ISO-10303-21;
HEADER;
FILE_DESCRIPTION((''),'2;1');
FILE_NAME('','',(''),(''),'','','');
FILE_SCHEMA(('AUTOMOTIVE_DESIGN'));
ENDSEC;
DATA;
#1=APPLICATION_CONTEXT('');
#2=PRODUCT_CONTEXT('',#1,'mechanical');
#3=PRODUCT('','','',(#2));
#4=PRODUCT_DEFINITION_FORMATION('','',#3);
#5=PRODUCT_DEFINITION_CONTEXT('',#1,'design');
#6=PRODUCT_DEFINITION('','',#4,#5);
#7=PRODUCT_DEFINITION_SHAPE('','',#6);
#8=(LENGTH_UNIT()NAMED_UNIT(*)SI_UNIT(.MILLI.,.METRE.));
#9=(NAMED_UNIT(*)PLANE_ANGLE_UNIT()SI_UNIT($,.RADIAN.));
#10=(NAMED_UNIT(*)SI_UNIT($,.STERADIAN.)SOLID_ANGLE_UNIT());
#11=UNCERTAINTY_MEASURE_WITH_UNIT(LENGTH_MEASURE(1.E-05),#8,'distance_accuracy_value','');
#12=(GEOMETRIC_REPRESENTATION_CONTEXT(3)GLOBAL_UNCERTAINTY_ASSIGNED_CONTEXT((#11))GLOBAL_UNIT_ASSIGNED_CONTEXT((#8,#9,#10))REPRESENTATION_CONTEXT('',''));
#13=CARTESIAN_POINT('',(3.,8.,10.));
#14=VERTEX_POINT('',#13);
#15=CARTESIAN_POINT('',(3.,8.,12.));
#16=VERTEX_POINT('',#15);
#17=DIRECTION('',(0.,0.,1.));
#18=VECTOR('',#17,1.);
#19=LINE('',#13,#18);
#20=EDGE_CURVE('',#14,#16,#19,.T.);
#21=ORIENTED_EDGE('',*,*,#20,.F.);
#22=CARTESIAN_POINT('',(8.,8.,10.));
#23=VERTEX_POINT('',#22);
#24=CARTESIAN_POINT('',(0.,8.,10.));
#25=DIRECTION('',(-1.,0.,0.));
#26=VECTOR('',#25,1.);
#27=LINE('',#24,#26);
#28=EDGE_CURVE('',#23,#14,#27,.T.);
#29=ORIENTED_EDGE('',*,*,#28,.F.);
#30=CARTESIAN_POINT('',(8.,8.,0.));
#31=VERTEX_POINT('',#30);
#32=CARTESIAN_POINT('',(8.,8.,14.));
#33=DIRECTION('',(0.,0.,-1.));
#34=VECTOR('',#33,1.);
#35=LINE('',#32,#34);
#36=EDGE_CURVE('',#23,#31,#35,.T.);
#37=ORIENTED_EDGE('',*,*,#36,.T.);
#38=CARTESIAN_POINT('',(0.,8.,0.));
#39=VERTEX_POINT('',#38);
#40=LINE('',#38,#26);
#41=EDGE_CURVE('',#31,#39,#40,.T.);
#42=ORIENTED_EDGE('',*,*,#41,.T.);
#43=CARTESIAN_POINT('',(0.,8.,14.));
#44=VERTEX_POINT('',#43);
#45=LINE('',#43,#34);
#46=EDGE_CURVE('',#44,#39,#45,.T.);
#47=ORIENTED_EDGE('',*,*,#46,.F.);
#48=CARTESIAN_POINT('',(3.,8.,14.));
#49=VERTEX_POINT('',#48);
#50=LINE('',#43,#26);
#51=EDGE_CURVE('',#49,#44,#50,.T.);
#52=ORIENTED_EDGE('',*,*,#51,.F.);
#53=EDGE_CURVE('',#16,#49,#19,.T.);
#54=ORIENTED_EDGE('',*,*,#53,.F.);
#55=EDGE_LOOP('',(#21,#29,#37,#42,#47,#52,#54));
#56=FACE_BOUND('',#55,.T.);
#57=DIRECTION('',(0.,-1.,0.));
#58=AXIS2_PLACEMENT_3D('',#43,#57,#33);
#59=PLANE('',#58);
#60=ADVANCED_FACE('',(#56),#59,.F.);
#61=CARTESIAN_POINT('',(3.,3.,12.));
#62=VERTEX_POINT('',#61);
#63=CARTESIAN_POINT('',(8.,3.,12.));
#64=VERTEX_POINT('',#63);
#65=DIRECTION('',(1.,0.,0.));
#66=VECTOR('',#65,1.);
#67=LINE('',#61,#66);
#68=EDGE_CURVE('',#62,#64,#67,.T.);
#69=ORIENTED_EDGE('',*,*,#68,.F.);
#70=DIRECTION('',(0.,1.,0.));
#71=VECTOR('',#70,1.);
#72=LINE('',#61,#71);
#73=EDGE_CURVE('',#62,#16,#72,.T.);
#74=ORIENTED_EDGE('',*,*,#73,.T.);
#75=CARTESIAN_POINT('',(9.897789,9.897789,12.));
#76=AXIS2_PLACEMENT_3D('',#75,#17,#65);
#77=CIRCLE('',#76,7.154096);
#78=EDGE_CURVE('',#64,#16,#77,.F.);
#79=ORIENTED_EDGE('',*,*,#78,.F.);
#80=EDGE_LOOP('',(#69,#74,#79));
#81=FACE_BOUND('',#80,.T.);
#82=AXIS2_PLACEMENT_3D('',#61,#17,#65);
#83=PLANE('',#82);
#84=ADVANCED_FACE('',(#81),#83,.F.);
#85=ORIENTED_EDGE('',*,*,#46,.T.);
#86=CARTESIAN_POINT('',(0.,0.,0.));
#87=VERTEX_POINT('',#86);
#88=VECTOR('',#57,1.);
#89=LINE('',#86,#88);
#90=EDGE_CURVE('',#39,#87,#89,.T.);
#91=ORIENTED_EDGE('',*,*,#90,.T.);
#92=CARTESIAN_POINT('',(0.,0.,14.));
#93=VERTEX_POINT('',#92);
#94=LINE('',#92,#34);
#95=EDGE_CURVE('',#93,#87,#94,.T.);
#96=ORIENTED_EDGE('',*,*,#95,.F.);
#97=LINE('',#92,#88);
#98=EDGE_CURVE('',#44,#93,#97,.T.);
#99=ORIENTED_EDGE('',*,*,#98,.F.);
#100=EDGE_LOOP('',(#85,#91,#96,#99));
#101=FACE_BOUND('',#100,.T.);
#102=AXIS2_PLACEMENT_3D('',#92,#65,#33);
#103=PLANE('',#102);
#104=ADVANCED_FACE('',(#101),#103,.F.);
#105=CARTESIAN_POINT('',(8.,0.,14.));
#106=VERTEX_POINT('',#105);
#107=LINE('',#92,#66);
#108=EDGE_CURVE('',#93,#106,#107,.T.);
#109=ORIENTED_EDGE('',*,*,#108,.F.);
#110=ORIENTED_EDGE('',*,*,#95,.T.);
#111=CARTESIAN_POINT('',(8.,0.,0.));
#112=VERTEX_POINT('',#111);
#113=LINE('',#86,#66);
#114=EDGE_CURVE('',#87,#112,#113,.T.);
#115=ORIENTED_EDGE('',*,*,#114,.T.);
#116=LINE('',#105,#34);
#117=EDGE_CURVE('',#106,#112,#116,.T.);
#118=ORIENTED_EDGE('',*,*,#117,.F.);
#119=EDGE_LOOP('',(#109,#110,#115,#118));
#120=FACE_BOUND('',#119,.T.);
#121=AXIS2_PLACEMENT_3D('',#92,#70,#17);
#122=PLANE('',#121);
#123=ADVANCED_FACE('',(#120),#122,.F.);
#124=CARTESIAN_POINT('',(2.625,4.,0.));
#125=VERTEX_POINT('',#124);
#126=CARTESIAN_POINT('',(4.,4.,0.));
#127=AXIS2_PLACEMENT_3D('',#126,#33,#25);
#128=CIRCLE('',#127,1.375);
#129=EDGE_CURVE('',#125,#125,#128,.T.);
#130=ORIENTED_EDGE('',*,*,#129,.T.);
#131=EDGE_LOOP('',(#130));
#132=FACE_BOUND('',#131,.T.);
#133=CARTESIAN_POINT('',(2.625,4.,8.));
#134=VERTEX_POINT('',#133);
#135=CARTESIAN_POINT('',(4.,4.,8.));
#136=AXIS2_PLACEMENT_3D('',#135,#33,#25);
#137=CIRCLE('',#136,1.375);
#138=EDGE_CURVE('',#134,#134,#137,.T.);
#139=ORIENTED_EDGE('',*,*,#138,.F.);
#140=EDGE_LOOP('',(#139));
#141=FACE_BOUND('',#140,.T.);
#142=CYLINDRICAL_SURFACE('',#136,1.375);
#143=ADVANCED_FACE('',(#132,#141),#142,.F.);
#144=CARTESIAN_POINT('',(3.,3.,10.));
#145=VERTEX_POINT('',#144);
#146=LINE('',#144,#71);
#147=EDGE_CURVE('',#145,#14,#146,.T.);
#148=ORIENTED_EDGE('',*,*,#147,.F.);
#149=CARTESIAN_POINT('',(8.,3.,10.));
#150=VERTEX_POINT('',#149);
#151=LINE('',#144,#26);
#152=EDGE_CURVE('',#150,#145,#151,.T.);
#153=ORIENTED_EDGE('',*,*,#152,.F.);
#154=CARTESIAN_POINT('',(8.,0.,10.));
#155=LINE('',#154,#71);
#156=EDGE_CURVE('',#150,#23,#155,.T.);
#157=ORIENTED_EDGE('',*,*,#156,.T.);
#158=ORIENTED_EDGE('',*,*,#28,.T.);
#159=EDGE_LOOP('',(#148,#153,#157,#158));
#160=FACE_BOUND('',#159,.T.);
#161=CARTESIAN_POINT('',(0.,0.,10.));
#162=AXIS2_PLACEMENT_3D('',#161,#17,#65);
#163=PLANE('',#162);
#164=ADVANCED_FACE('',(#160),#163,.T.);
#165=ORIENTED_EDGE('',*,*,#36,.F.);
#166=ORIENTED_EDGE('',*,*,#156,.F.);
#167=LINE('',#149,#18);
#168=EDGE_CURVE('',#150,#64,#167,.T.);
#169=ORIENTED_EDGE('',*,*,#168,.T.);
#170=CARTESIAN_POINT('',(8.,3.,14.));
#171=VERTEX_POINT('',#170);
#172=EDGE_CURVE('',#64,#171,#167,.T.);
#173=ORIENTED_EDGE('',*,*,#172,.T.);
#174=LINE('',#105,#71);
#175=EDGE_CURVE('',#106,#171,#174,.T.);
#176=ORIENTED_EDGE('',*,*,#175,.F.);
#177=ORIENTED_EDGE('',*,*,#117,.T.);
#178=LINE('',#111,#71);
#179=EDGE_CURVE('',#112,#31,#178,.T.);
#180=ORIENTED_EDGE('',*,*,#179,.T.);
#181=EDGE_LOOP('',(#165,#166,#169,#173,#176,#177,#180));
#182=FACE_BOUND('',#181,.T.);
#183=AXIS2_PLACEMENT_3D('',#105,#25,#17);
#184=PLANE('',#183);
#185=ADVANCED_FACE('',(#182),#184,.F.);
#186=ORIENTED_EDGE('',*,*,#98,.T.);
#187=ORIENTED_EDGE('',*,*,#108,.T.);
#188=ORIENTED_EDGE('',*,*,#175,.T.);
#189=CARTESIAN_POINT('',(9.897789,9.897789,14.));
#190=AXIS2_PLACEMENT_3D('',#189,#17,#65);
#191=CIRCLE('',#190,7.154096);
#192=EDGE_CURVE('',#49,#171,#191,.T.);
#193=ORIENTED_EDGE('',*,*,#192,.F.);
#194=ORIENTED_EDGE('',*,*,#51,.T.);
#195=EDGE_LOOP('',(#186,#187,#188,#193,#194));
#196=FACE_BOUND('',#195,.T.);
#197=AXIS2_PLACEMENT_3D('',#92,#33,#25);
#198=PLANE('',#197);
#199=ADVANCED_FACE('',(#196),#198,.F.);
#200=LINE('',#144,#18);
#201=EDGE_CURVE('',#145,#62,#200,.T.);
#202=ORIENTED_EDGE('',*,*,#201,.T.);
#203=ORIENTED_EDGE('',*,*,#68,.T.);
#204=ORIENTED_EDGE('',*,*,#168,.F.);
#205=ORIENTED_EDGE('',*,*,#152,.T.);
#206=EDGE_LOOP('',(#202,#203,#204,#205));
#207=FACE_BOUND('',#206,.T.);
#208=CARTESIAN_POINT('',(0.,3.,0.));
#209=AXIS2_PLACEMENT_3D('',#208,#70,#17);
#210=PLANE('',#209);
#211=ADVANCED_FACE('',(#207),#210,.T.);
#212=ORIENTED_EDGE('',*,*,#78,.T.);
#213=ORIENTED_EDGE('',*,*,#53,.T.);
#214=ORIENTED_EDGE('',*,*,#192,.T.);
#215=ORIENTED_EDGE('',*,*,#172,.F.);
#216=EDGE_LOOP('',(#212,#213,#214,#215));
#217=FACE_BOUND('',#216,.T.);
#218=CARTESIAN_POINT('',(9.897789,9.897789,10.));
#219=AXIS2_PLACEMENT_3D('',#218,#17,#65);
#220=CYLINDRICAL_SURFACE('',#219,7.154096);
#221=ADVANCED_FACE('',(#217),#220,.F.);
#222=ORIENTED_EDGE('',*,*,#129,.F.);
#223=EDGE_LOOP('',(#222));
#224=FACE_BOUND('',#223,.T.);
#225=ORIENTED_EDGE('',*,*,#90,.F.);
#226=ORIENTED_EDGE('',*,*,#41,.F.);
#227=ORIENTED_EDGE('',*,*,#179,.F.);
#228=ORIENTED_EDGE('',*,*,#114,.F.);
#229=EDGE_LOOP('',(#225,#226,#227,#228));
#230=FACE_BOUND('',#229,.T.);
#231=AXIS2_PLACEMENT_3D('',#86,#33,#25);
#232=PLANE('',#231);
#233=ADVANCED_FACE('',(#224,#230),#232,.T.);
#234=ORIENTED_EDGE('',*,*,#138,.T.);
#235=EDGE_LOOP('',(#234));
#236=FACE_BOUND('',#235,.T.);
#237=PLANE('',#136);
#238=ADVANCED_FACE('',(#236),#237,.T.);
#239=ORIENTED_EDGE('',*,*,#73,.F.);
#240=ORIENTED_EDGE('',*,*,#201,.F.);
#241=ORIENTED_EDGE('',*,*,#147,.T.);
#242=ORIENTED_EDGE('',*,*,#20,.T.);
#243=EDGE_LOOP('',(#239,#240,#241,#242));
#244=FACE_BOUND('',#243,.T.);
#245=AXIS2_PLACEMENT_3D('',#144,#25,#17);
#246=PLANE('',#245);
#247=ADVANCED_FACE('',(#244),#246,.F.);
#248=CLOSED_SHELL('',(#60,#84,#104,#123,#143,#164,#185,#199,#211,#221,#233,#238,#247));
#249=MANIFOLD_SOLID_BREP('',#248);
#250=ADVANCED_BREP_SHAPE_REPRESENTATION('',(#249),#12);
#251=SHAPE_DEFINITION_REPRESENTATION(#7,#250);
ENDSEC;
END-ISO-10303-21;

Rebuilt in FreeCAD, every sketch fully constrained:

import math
import FreeCAD as App
import Part
import Sketcher
from FreeCAD import Vector


def add_polygon(sketch, points):
    """Adds a closed chain of lines whose ends are joined by coincident constraints."""
    first, n = sketch.GeometryCount, len(points)
    for a, b in zip(points, points[1:] + points[:1]):
        sketch.addGeometry(Part.LineSegment(App.Vector(*a, 0), App.Vector(*b, 0)), False)
    for i in range(n):
        sketch.addConstraint(Sketcher.Constraint("Coincident", first + i, 2, first + (i + 1) % n, 1))

doc = App.newDocument("Part")
body = doc.addObject("PartDesign::Body", "Body")

# Sketch on XY plane
sketch1 = body.newObject("Sketcher::SketchObject", "Sketch")
sketch1.AttachmentSupport = (doc.getObject("XY_Plane"), [""])
sketch1.MapMode = "FlatFace"
add_polygon(sketch1, [(0, 8), (0, 0), (8, 0), (8, 8)])  # lines 0-3
sketch1.addConstraint(Sketcher.Constraint("Vertical", 0))
sketch1.addConstraint(Sketcher.Constraint("Horizontal", 1))
sketch1.addConstraint(Sketcher.Constraint("Vertical", 2))
sketch1.addConstraint(Sketcher.Constraint("Horizontal", 3))
sketch1.addConstraint(Sketcher.Constraint("Coincident", 0, 2, -1, 1))
sketch1.addConstraint(Sketcher.Constraint("Equal", 3, 0))
sketch1.addConstraint(Sketcher.Constraint("DistanceX", 1, 1, 1, 2, 8.0))
pad1 = body.newObject("PartDesign::Pad", "Pad")
pad1.Profile = sketch1
pad1.Length = 14

# Sketch on XY plane
sketch2 = body.newObject("Sketcher::SketchObject", "Sketch001")
sketch2.AttachmentSupport = (doc.getObject("XY_Plane"), [""])
sketch2.MapMode = "FlatFace"
sketch2.addGeometry(Part.Circle(Vector(4, 4, 0), Vector(0, 0, 1), 1.4), False)
sketch2.addConstraint(Sketcher.Constraint("Diameter", 0, 2.75))
sketch2.addConstraint(Sketcher.Constraint("DistanceX", -1, 1, 0, 3, 4.0))
sketch2.addConstraint(Sketcher.Constraint("DistanceY", -1, 1, 0, 3, 4.0))
pocket1 = body.newObject("PartDesign::Pocket", "Pocket")
pocket1.Profile = sketch2
pocket1.Length = 8
pocket1.Reversed = True

# Sketch on XY plane
sketch3 = body.newObject("Sketcher::SketchObject", "Sketch002")
sketch3.AttachmentSupport = (doc.getObject("XY_Plane"), [""])
sketch3.MapMode = "FlatFace"
sketch3.AttachmentOffset = App.Placement(Vector(0, 0, 14), App.Rotation())
sketch3.addGeometry(Part.ArcOfCircle(Part.Circle(Vector(10, 10, 0), Vector(0, 0, 1), 7), math.radians(0), math.radians(195)), False)
sketch3.addGeometry(Part.ArcOfCircle(Part.Circle(Vector(10, 10, 0), Vector(0, 0, 1), 7), math.radians(-165), math.radians(-105)), False)
sketch3.addGeometry(Part.ArcOfCircle(Part.Circle(Vector(10, 10, 0), Vector(0, 0, 1), 7), math.radians(-105), math.radians(0)), False)
sketch3.addConstraint(Sketcher.Constraint("Tangent", 0, 2, 1, 1))
sketch3.addConstraint(Sketcher.Constraint("Tangent", 1, 2, 2, 1))
sketch3.addConstraint(Sketcher.Constraint("Tangent", 2, 2, 0, 1))
sketch3.addConstraint(Sketcher.Constraint("Horizontal", 1, 3, 2, 2))
sketch3.addConstraint(Sketcher.Constraint("DistanceX", -1, 1, 0, 2, 3.0))
sketch3.addConstraint(Sketcher.Constraint("DistanceY", -1, 1, 0, 2, 8.0))
sketch3.addConstraint(Sketcher.Constraint("DistanceX", -1, 1, 1, 2, 8.0))
sketch3.addConstraint(Sketcher.Constraint("DistanceY", -1, 1, 1, 2, 3.0))
sketch3.addConstraint(Sketcher.Constraint("Radius", 0, 7.154096))
pocket2 = body.newObject("PartDesign::Pocket", "Pocket001")
pocket2.Profile = sketch3
pocket2.Length = 4

# Sketch on XZ plane
sketch4 = body.newObject("Sketcher::SketchObject", "Sketch003")
sketch4.AttachmentSupport = (doc.getObject("XZ_Plane"), [""])
sketch4.MapMode = "FlatFace"
sketch4.AttachmentOffset = App.Placement(Vector(0, 0, -8), App.Rotation())
add_polygon(sketch4, [(3, 10), (3, 12), (8, 12), (8, 10)])  # lines 0-3
sketch4.addConstraint(Sketcher.Constraint("Vertical", 0))
sketch4.addConstraint(Sketcher.Constraint("Horizontal", 1))
sketch4.addConstraint(Sketcher.Constraint("Vertical", 2))
sketch4.addConstraint(Sketcher.Constraint("Horizontal", 3))
sketch4.addConstraint(Sketcher.Constraint("DistanceX", 1, 1, 1, 2, 5.0))
sketch4.addConstraint(Sketcher.Constraint("DistanceY", 0, 1, 0, 2, 2.0))
sketch4.addConstraint(Sketcher.Constraint("DistanceX", -1, 1, 0, 2, 3.0))
sketch4.addConstraint(Sketcher.Constraint("DistanceY", -1, 1, 0, 2, 12.0))
pocket3 = body.newObject("PartDesign::Pocket", "Pocket002")
pocket3.Profile = sketch4
pocket3.Length = 5
pocket3.Reversed = True

doc.recompute()
